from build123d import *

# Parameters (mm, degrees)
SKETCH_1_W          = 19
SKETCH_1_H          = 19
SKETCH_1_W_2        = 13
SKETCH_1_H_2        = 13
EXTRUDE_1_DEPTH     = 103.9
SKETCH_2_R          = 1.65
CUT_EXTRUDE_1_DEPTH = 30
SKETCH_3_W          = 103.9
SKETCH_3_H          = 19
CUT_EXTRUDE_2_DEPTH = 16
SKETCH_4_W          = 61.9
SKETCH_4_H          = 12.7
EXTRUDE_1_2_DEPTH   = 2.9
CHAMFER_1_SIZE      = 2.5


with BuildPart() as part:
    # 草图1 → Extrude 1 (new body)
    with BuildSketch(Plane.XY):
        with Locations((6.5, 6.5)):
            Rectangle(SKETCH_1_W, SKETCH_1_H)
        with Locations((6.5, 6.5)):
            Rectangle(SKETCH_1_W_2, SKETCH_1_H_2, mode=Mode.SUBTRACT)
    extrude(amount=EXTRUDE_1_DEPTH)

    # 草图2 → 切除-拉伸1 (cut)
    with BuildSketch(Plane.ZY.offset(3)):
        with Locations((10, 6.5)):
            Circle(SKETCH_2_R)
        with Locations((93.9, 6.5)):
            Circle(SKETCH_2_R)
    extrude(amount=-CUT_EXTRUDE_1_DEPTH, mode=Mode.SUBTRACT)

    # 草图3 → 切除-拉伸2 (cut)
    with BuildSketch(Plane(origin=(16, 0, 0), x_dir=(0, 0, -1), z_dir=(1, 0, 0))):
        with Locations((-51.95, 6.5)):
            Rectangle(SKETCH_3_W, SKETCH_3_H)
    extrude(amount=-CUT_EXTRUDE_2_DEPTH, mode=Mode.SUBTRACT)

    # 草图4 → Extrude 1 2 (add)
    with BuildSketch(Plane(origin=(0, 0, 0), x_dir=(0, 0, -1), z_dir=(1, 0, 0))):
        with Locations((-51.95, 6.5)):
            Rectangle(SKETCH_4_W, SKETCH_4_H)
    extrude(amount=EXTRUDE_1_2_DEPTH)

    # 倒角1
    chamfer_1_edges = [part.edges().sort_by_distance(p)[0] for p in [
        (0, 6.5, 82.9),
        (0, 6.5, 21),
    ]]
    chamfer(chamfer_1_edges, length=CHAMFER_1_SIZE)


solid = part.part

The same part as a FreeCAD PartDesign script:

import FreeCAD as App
import Part
import Sketcher


def edges_at(feature, points):
    """Names of the edges that pass closest to the given points."""
    edges = feature.Shape.Edges
    near = lambda p: min(range(len(edges)), key=lambda i: edges[i].distToShape(Part.Vertex(*p))[0])
    return sorted({f"Edge{near(p) + 1}" for p in points})


def add_polygon(sketch, points):
    """Adds a closed chain of lines whose ends are joined by coincident constraints."""
    first, n = sketch.GeometryCount, len(points)
    for a, b in zip(points, points[1:] + points[:1]):
        sketch.addGeometry(Part.LineSegment(App.Vector(*a, 0), App.Vector(*b, 0)), False)
    for i in range(n):
        sketch.addConstraint(Sketcher.Constraint("Coincident", first + i, 2, first + (i + 1) % n, 1))

doc = App.newDocument("Part")
params = doc.addObject("Spreadsheet::Sheet", "Params")
for row, (alias, value) in enumerate([
    ("sketch1_width", "19 mm"),
    ("sketch1_width2", "13 mm"),
    ("pad1_length", "103.9 mm"),
    ("sketch2_diameter", "3.3 mm"),
    ("pocket1_length", "30 mm"),
    ("sketch3_width", "19 mm"),
    ("sketch3_height", "103.9 mm"),
    ("pocket2_length", "16 mm"),
    ("sketch4_width", "12.7 mm"),
    ("sketch4_height", "61.9 mm"),
    ("pad2_length", "2.9 mm"),
    ("chamfer_size", "2.5 mm"),
], start=1):
    params.set(f"A{row}", alias)
    params.set(f"B{row}", "=" + value)
    params.setAlias(f"B{row}", alias)

body = doc.addObject("PartDesign::Body", "Body")

# Sketch on XY plane
sketch1 = doc.addObject("Sketcher::SketchObject", "Sketch")
body.addObject(sketch1)
sketch1.AttachmentSupport = (doc.XY_Plane, [""])
sketch1.MapMode = "FlatFace"
add_polygon(sketch1, [(-3, 16), (-3, -3), (16, -3), (16, 16)])  # lines 0-3
add_polygon(sketch1, [(13, 0), (0, 0), (0, 13), (13, 13)])  # lines 4-7
sketch1.addConstraint([
    Sketcher.Constraint("Vertical", 0),
    Sketcher.Constraint("Horizontal", 1),
    Sketcher.Constraint("Vertical", 2),
    Sketcher.Constraint("Horizontal", 3),
    Sketcher.Constraint("Horizontal", 4),
    Sketcher.Constraint("Vertical", 5),
    Sketcher.Constraint("Horizontal", 6),
    Sketcher.Constraint("Vertical", 7),
    Sketcher.Constraint("Coincident", 4, 2, -1, 1),
    Sketcher.Constraint("Equal", 3, 0),
    Sketcher.Constraint("Equal", 6, 5),
    Sketcher.Constraint("DistanceX", 1, 1, 1, 2, 19.0),
    Sketcher.Constraint("DistanceX", 4, 2, 4, 1, 13.0),
    Sketcher.Constraint("DistanceX", 0, 2, -1, 1, 3.0),
    Sketcher.Constraint("DistanceY", 0, 2, -1, 1, 3.0),
])
sketch1.setExpression("Constraints[19]", "Params.sketch1_width")
sketch1.setExpression("Constraints[20]", "Params.sketch1_width2")
pad1 = doc.addObject("PartDesign::Pad", "Pad")
body.addObject(pad1)
pad1.Profile = sketch1
pad1.setExpression("Length", "Params.pad1_length")

# Sketch on YZ plane
sketch2 = doc.addObject("Sketcher::SketchObject", "Sketch001")
body.addObject(sketch2)
sketch2.AttachmentSupport = (doc.YZ_Plane, [""])
sketch2.MapMode = "FlatFace"
sketch2.AttachmentOffset = App.Placement(App.Vector(0, 0, -3), App.Rotation())
sketch2.addGeometry([
    Part.Circle(App.Vector(6.5, 10, 0), App.Vector(0, 0, 1), 1.6),
    Part.Circle(App.Vector(6.5, 93.9, 0), App.Vector(0, 0, 1), 1.6),
], False)
sketch2.addConstraint([
    Sketcher.Constraint("Equal", 0, 1),
    Sketcher.Constraint("Vertical", 0, 3, 1, 3),
    Sketcher.Constraint("Diameter", 0, 3.3),
    Sketcher.Constraint("DistanceY", -1, 1, 0, 3, 10.0),
    Sketcher.Constraint("DistanceX", -1, 1, 0, 3, 6.5),
    Sketcher.Constraint("DistanceY", -1, 1, 1, 3, 93.9),
])
sketch2.setExpression("Constraints[2]", "Params.sketch2_diameter")
pocket1 = doc.addObject("PartDesign::Pocket", "Pocket")
body.addObject(pocket1)
pocket1.Profile = sketch2
pocket1.setExpression("Length", "Params.pocket1_length")
pocket1.Reversed = True

# Sketch on YZ plane
sketch3 = doc.addObject("Sketcher::SketchObject", "Sketch002")
body.addObject(sketch3)
sketch3.AttachmentSupport = (doc.YZ_Plane, [""])
sketch3.MapMode = "FlatFace"
sketch3.AttachmentOffset = App.Placement(App.Vector(0, 0, 16), App.Rotation())
add_polygon(sketch3, [(16, 104), (-3, 104), (-3, 0), (16, 0)])  # lines 0-3
sketch3.addConstraint([
    Sketcher.Constraint("Horizontal", 0),
    Sketcher.Constraint("Vertical", 1),
    Sketcher.Constraint("Horizontal", 2),
    Sketcher.Constraint("Vertical", 3),
    Sketcher.Constraint("PointOnObject", 1, 2, -1),
    Sketcher.Constraint("DistanceX", 0, 2, 0, 1, 19.0),
    Sketcher.Constraint("DistanceY", 1, 2, 1, 1, 103.9),
    Sketcher.Constraint("DistanceX", 0, 2, -1, 1, 3.0),
])
sketch3.setExpression("Constraints[9]", "Params.sketch3_width")
sketch3.setExpression("Constraints[10]", "Params.sketch3_height")
pocket2 = doc.addObject("PartDesign::Pocket", "Pocket001")
body.addObject(pocket2)
pocket2.Profile = sketch3
pocket2.setExpression("Length", "Params.pocket2_length")

# Sketch on YZ plane
sketch4 = doc.addObject("Sketcher::SketchObject", "Sketch003")
body.addObject(sketch4)
sketch4.AttachmentSupport = (doc.YZ_Plane, [""])
sketch4.MapMode = "FlatFace"
add_polygon(sketch4, [(13, 83), (0, 83), (0, 21), (13, 21)])  # lines 0-3
sketch4.addConstraint([
    Sketcher.Constraint("Horizontal", 0),
    Sketcher.Constraint("Vertical", 1),
    Sketcher.Constraint("Horizontal", 2),
    Sketcher.Constraint("Vertical", 3),
    Sketcher.Constraint("DistanceX", 0, 2, 0, 1, 12.7),
    Sketcher.Constraint("DistanceY", 1, 2, 1, 1, 61.9),
    Sketcher.Constraint("DistanceY", -1, 1, 1, 2, 21.0),
    Sketcher.Constraint("DistanceX", -1, 1, 0, 2, 0.15),
])
sketch4.setExpression("Constraints[8]", "Params.sketch4_width")
sketch4.setExpression("Constraints[9]", "Params.sketch4_height")
pad2 = doc.addObject("PartDesign::Pad", "Pad001")
body.addObject(pad2)
pad2.Profile = sketch4
pad2.setExpression("Length", "Params.pad2_length")
doc.recompute()

chamfer = doc.addObject("PartDesign::Chamfer", "Chamfer")
body.addObject(chamfer)
chamfer.Base = (pad2, edges_at(pad2, [(0, 6.5, 82.9), (0, 6.5, 21)]))
chamfer.setExpression("Size", "Params.chamfer_size")

doc.recompute()
